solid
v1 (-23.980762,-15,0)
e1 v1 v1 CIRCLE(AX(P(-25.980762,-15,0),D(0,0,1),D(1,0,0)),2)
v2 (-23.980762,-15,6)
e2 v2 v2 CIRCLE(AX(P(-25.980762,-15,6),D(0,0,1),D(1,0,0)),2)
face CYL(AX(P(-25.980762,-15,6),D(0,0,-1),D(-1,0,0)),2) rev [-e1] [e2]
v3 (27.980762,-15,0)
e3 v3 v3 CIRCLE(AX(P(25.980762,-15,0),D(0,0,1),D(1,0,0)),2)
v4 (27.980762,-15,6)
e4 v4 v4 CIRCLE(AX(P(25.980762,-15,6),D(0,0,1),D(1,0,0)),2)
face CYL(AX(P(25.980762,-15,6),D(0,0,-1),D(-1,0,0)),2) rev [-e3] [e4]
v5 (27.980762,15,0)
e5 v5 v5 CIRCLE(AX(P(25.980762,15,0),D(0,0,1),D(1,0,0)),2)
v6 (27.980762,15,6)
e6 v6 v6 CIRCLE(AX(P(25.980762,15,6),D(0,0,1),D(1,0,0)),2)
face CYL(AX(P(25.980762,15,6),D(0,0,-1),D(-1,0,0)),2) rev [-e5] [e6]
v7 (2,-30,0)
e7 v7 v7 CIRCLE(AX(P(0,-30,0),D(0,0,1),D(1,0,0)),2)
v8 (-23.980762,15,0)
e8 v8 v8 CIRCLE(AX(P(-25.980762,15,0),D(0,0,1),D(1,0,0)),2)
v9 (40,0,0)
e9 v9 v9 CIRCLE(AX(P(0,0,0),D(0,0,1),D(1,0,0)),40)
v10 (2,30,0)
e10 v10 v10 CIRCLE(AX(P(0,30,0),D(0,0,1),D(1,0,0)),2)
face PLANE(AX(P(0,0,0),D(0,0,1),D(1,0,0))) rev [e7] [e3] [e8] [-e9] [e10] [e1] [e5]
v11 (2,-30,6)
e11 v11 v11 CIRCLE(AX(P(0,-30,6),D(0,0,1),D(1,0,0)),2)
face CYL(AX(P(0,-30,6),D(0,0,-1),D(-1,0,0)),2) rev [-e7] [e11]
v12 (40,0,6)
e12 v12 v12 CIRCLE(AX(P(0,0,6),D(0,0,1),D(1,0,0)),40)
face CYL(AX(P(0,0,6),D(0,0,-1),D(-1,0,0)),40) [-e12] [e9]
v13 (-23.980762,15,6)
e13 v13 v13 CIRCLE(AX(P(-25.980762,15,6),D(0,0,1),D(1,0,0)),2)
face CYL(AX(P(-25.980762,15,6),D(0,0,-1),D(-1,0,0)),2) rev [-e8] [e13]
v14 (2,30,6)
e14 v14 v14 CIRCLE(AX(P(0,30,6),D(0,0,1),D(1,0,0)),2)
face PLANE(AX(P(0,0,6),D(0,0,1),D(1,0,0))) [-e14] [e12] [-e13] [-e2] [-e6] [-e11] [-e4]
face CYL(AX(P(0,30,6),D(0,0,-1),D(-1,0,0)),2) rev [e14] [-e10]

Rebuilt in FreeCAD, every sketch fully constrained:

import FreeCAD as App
import Part
import Sketcher

V = App.Vector
Q = App.Units.Quantity

doc = App.newDocument("Part")
params = doc.addObject("Spreadsheet::Sheet", "Params")
for row, (alias, value) in enumerate([
    ("sketch1_diameter", "80 mm"),
    ("pad1_length", "6 mm"),
    ("sketch2_diameter", "4 mm"),
], start=1):
    params.set(f"A{row}", alias)
    params.set(f"B{row}", "=" + value)
    params.setAlias(f"B{row}", alias)

body = doc.addObject("PartDesign::Body", "Body")

# Sketch on XY plane
sketch1 = body.newObject("Sketcher::SketchObject", "Sketch")
sketch1.AttachmentSupport = (doc.getObject("XY_Plane"), [""])
sketch1.MapMode = "FlatFace"
sketch1.addGeometry(Part.Circle(V(0, 0, 0), V(0, 0, 1), 40), False)
sketch1.addConstraint(Sketcher.Constraint("Coincident", 0, 3, -1, 1))
sketch1.addConstraint(Sketcher.Constraint("Diameter", 0, Q("80 mm")))
sketch1.setExpression("Constraints[1]", "Params.sketch1_diameter")
pad1 = body.newObject("PartDesign::Pad", "Pad")
pad1.Profile = sketch1
pad1.setExpression("Length", "Params.pad1_length")

# Sketch on XY plane
sketch2 = body.newObject("Sketcher::SketchObject", "Sketch001")
sketch2.AttachmentSupport = (doc.getObject("XY_Plane"), [""])
sketch2.MapMode = "FlatFace"
sketch2.addGeometry(Part.Circle(V(0, 30, 0), V(0, 0, 1), 2), False)
sketch2.addGeometry(Part.Circle(V(25.980762, 15, 0), V(0, 0, 1), 2), False)
sketch2.addGeometry(Part.Circle(V(25.980762, -15, 0), V(0, 0, 1), 2), False)
sketch2.addGeometry(Part.Circle(V(0, -30, 0), V(0, 0, 1), 2), False)
sketch2.addGeometry(Part.Circle(V(-25.980762, -15, 0), V(0, 0, 1), 2), False)
sketch2.addGeometry(Part.Circle(V(-25.980762, 15, 0), V(0, 0, 1), 2), False)
sketch2.addConstraint(Sketcher.Constraint("Equal", 0, 1))
sketch2.addConstraint(Sketcher.Constraint("Equal", 1, 2))
sketch2.addConstraint(Sketcher.Constraint("Equal", 2, 3))
sketch2.addConstraint(Sketcher.Constraint("Equal", 3, 4))
sketch2.addConstraint(Sketcher.Constraint("Equal", 4, 5))
sketch2.addConstraint(Sketcher.Constraint("Symmetric", 0, 3, 3, 3, -1, 1))
sketch2.addConstraint(Sketcher.Constraint("Symmetric", 1, 3, 4, 3, -1, 1))
sketch2.addConstraint(Sketcher.Constraint("Symmetric", 2, 3, 5, 3, -1, 1))
sketch2.addConstraint(Sketcher.Constraint("Symmetric", 2, 3, 4, 3, -2))
sketch2.addConstraint(Sketcher.Constraint("PointOnObject", 0, 3, -2))
sketch2.addConstraint(Sketcher.Constraint("Diameter", 0, Q("4 mm")))
sketch2.addConstraint(Sketcher.Constraint("DistanceY", -1, 1, 0, 3, Q("30 mm")))
sketch2.addConstraint(Sketcher.Constraint("DistanceY", -1, 1, 1, 3, Q("15 mm")))
sketch2.addConstraint(Sketcher.Constraint("DistanceX", -1, 1, 1, 3, Q("25.980762 mm")))
sketch2.setExpression("Constraints[10]", "Params.sketch2_diameter")
pocket1 = body.newObject("PartDesign::Pocket", "Pocket")
pocket1.Profile = sketch2
pocket1.Type = "ThroughAll"
pocket1.Reversed = True

doc.recompute()
